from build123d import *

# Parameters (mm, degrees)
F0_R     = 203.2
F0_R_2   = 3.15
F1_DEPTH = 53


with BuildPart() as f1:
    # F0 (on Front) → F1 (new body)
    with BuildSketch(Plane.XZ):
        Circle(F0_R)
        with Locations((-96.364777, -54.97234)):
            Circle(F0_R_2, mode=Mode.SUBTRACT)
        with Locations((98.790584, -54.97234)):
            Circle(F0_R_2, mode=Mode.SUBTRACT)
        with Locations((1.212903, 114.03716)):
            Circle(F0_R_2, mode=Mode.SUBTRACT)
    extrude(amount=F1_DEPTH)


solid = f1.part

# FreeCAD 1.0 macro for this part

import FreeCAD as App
import Part
import Sketcher
from FreeCAD import Vector

doc = App.newDocument("Part")
params = doc.addObject("Spreadsheet::Sheet", "Params")
for row, (alias, value) in enumerate([
    ("sketch1_diameter", "406.4 mm"),
    ("sketch1_diameter2", "6.3 mm"),
    ("pad1_length", "53 mm"),
], start=1):
    params.set(f"A{row}", alias)
    params.set(f"B{row}", "=" + value)
    params.setAlias(f"B{row}", alias)

body = doc.addObject("PartDesign::Body", "Body")

# Sketch on XZ plane
sketch1 = body.newObject("Sketcher::SketchObject", "Sketch")
sketch1.AttachmentSupport = (doc.getObject("XZ_Plane"), [""])
sketch1.MapMode = "FlatFace"
sketch1.addGeometry(Part.Circle(Vector(0, 0, 0), Vector(0, 0, 1), 203.2), False)
sketch1.addGeometry(Part.Circle(Vector(-96.364777, -54.97234, 0), Vector(0, 0, 1), 3.15), False)
sketch1.addGeometry(Part.Circle(Vector(98.790584, -54.97234, 0), Vector(0, 0, 1), 3.15), False)
sketch1.addGeometry(Part.Circle(Vector(1.212903, 114.03716, 0), Vector(0, 0, 1), 3.15), False)
sketch1.addConstraint(Sketcher.Constraint("Coincident", 0, 3, -1, 1))
sketch1.addConstraint(Sketcher.Constraint("Equal", 1, 2))
sketch1.addConstraint(Sketcher.Constraint("Equal", 2, 3))
sketch1.addConstraint(Sketcher.Constraint("Horizontal", 1, 3, 2, 3))
sketch1.addConstraint(Sketcher.Constraint("Diameter", 0, 406.4))
sketch1.addConstraint(Sketcher.Constraint("Diameter", 1, 6.3))
sketch1.addConstraint(Sketcher.Constraint("DistanceY", 1, 3, 3, 3, 169.0095))
sketch1.addConstraint(Sketcher.Constraint("DistanceY", 1, 3, -1, 1, 54.97234))
sketch1.addConstraint(Sketcher.Constraint("DistanceX", 1, 3, 2, 3, 195.155361))
sketch1.addConstraint(Sketcher.Constraint("DistanceX", 1, 3, 3, 3, 97.57768))
sketch1.addConstraint(Sketcher.Constraint("DistanceX", 1, 3, -1, 1, 96.364777))
sketch1.setExpression("Constraints[4]", "Params.sketch1_diameter")
sketch1.setExpression("Constraints[5]", "Params.sketch1_diameter2")
pad1 = body.newObject("PartDesign::Pad", "Pad")
pad1.Profile = sketch1
pad1.setExpression("Length", "Params.pad1_length")

doc.recompute()
